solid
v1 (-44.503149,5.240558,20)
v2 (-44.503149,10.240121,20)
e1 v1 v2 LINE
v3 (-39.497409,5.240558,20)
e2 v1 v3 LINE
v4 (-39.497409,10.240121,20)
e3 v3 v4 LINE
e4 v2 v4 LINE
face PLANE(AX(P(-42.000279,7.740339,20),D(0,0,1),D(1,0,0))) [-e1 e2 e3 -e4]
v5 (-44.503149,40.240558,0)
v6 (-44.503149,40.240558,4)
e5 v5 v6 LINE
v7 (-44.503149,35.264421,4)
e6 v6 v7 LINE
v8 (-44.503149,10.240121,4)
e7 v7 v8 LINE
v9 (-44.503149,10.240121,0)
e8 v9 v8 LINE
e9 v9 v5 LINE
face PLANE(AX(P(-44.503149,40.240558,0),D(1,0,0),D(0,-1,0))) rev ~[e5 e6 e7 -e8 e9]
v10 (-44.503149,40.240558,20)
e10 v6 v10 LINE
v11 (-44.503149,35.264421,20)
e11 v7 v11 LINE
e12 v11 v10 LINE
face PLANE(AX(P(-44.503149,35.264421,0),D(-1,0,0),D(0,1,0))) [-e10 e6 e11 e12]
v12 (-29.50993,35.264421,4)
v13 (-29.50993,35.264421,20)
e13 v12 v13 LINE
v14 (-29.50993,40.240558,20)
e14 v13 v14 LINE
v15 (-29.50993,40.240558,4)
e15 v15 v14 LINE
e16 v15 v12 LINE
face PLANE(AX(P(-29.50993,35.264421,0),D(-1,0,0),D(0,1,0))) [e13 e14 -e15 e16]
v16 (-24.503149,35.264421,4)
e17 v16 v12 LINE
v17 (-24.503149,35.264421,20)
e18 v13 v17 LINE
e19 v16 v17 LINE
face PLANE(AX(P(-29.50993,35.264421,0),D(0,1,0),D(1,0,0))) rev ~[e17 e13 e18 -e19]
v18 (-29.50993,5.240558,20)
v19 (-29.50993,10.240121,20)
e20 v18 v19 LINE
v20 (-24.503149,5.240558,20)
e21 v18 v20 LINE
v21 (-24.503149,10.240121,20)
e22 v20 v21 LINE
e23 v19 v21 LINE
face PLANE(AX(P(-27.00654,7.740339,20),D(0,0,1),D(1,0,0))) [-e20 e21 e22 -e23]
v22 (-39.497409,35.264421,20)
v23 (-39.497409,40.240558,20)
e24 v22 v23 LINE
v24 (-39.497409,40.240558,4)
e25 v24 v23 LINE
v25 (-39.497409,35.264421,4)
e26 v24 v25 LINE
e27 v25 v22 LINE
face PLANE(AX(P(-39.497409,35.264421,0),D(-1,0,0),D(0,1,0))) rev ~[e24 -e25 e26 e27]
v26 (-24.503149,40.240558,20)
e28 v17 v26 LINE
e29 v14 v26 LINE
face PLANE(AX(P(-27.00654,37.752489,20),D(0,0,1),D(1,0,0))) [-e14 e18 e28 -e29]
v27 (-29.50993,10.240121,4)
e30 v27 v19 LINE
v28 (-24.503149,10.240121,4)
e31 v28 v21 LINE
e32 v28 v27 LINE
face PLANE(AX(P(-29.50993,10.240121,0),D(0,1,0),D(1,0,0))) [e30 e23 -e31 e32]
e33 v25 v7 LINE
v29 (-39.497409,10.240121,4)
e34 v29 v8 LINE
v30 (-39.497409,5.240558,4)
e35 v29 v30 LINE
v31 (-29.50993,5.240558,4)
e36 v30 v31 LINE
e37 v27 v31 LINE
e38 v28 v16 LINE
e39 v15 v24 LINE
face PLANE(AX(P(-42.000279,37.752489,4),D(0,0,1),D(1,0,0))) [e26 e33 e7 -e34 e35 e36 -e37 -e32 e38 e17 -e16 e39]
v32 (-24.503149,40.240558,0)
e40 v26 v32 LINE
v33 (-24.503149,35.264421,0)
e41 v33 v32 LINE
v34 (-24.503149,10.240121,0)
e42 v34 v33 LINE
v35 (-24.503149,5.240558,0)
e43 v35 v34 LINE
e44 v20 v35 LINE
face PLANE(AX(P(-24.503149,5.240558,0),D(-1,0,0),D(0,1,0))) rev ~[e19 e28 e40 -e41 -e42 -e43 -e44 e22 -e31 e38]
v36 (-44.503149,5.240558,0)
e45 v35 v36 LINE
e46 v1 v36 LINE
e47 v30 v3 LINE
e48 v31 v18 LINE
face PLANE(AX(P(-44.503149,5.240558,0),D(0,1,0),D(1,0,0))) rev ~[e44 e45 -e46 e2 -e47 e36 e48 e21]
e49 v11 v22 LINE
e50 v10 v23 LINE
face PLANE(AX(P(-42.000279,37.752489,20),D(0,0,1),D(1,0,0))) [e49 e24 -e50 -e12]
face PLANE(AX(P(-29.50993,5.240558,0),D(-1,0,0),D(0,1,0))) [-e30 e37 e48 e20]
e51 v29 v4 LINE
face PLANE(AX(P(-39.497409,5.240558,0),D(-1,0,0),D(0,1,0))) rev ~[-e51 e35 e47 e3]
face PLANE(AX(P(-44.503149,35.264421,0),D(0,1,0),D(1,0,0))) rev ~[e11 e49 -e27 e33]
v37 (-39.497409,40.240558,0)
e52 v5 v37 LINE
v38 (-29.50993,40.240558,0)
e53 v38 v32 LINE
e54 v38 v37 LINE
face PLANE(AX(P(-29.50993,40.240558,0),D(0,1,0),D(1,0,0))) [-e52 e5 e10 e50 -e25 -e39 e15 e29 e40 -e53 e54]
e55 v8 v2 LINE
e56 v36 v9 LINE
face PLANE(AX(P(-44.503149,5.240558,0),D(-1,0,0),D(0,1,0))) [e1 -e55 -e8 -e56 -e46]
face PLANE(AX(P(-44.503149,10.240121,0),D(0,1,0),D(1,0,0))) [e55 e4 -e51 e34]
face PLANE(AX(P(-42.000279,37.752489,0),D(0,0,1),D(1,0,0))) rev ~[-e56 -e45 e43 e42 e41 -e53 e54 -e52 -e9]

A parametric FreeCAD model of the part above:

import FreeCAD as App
import Part
import Sketcher
from FreeCAD import Vector

doc = App.newDocument("Part")
params = doc.addObject("Spreadsheet::Sheet", "Params")
for row, (alias, value) in enumerate([
    ("sketch1_width", "20 mm"),
    ("pad1_length", "4 mm"),
    ("pad2_length", "20 mm"),
], start=1):
    params.set(f"A{row}", alias)
    params.set(f"B{row}", "=" + value)
    params.setAlias(f"B{row}", alias)

body = doc.addObject("PartDesign::Body", "Body")

# Sketch on XY plane
sketch1 = body.newObject("Sketcher::SketchObject", "Sketch")
sketch1.AttachmentSupport = (doc.getObject("XY_Plane"), [""])
sketch1.MapMode = "FlatFace"
sketch1.addGeometry([
    Part.LineSegment(Vector(-44.5, 40.2, 0), Vector(-44.5, 10.2, 0)),  # 0
    Part.LineSegment(Vector(-44.5, 10.2, 0), Vector(-44.5, 5.2, 0)),  # 1
    Part.LineSegment(Vector(-44.5, 5.2, 0), Vector(-24.5, 5.2, 0)),  # 2
    Part.LineSegment(Vector(-24.5, 5.2, 0), Vector(-24.5, 10.2, 0)),  # 3
    Part.LineSegment(Vector(-24.5, 10.2, 0), Vector(-24.5, 35.3, 0)),  # 4
    Part.LineSegment(Vector(-24.5, 35.3, 0), Vector(-24.5, 40.2, 0)),  # 5
    Part.LineSegment(Vector(-24.5, 40.2, 0), Vector(-29.5, 40.2, 0)),  # 6
    Part.LineSegment(Vector(-29.5, 40.2, 0), Vector(-39.5, 40.2, 0)),  # 7
    Part.LineSegment(Vector(-39.5, 40.2, 0), Vector(-44.5, 40.2, 0)),  # 8
], False)
sketch1.addConstraint([
    Sketcher.Constraint("Coincident", 0, 2, 1, 1),
    Sketcher.Constraint("Coincident", 1, 2, 2, 1),
    Sketcher.Constraint("Coincident", 2, 2, 3, 1),
    Sketcher.Constraint("Coincident", 3, 2, 4, 1),
    Sketcher.Constraint("Coincident", 4, 2, 5, 1),
    Sketcher.Constraint("Coincident", 5, 2, 6, 1),
    Sketcher.Constraint("Coincident", 6, 2, 7, 1),
    Sketcher.Constraint("Coincident", 7, 2, 8, 1),
    Sketcher.Constraint("Coincident", 8, 2, 0, 1),
    Sketcher.Constraint("Vertical", 0),
    Sketcher.Constraint("Vertical", 1),
    Sketcher.Constraint("Horizontal", 2),
    Sketcher.Constraint("Vertical", 3),
    Sketcher.Constraint("Vertical", 4),
    Sketcher.Constraint("Vertical", 5),
    Sketcher.Constraint("Horizontal", 6),
    Sketcher.Constraint("Horizontal", 7),
    Sketcher.Constraint("Horizontal", 8),
    Sketcher.Constraint("Horizontal", 0, 2, 3, 2),
    Sketcher.Constraint("DistanceX", 2, 1, 2, 2, 20.0),
    Sketcher.Constraint("DistanceY", 2, 2, 5, 2, 35.0),
    Sketcher.Constraint("DistanceY", 4, 1, 4, 2, 25.0243),
    Sketcher.Constraint("DistanceX", 6, 2, 6, 1, 5.006781),
    Sketcher.Constraint("DistanceX", 7, 2, 7, 1, 9.987479),
    Sketcher.Constraint("DistanceY", 0, 2, 0, 1, 30.000437),
    Sketcher.Constraint("DistanceX", 0, 2, -1, 1, 44.503149),
    Sketcher.Constraint("DistanceY", -1, 1, 0, 2, 10.240121),
])
sketch1.setExpression("Constraints[19]", "Params.sketch1_width")
pad1 = body.newObject("PartDesign::Pad", "Pad")
pad1.Profile = sketch1
pad1.setExpression("Length", "Params.pad1_length")

# Sketch on XY plane
sketch2 = body.newObject("Sketcher::SketchObject", "Sketch001")
sketch2.AttachmentSupport = (doc.getObject("XY_Plane"), [""])
sketch2.MapMode = "FlatFace"
sketch2.addGeometry([
    Part.LineSegment(Vector(-29.5, 40.2, 0), Vector(-29.5, 35.3, 0)),  # 0
    Part.LineSegment(Vector(-29.5, 35.3, 0), Vector(-24.5, 35.3, 0)),  # 1
    Part.LineSegment(Vector(-24.5, 35.3, 0), Vector(-24.5, 40.2, 0)),  # 2
    Part.LineSegment(Vector(-24.5, 40.2, 0), Vector(-29.5, 40.2, 0)),  # 3
    Part.LineSegment(Vector(-44.5, 40.2, 0), Vector(-44.5, 35.3, 0)),  # 4
    Part.LineSegment(Vector(-44.5, 35.3, 0), Vector(-39.5, 35.3, 0)),  # 5
    Part.LineSegment(Vector(-39.5, 35.3, 0), Vector(-39.5, 40.2, 0)),  # 6
    Part.LineSegment(Vector(-39.5, 40.2, 0), Vector(-44.5, 40.2, 0)),  # 7
    Part.LineSegment(Vector(-44.5, 10.2, 0), Vector(-44.5, 5.2, 0)),  # 8
    Part.LineSegment(Vector(-44.5, 5.2, 0), Vector(-39.5, 5.2, 0)),  # 9
    Part.LineSegment(Vector(-39.5, 5.2, 0), Vector(-39.5, 10.2, 0)),  # 10
    Part.LineSegment(Vector(-39.5, 10.2, 0), Vector(-44.5, 10.2, 0)),  # 11
    Part.LineSegment(Vector(-29.5, 10.2, 0), Vector(-29.5, 5.2, 0)),  # 12
    Part.LineSegment(Vector(-29.5, 5.2, 0), Vector(-24.5, 5.2, 0)),  # 13
    Part.LineSegment(Vector(-24.5, 5.2, 0), Vector(-24.5, 10.2, 0)),  # 14
    Part.LineSegment(Vector(-24.5, 10.2, 0), Vector(-29.5, 10.2, 0)),  # 15
], False)
sketch2.addConstraint([
    Sketcher.Constraint("Coincident", 0, 2, 1, 1),
    Sketcher.Constraint("Coincident", 1, 2, 2, 1),
    Sketcher.Constraint("Coincident", 2, 2, 3, 1),
    Sketcher.Constraint("Coincident", 3, 2, 0, 1),
    Sketcher.Constraint("Coincident", 4, 2, 5, 1),
    Sketcher.Constraint("Coincident", 5, 2, 6, 1),
    Sketcher.Constraint("Coincident", 6, 2, 7, 1),
    Sketcher.Constraint("Coincident", 7, 2, 4, 1),
    Sketcher.Constraint("Coincident", 8, 2, 9, 1),
    Sketcher.Constraint("Coincident", 9, 2, 10, 1),
    Sketcher.Constraint("Coincident", 10, 2, 11, 1),
    Sketcher.Constraint("Coincident", 11, 2, 8, 1),
    Sketcher.Constraint("Coincident", 12, 2, 13, 1),
    Sketcher.Constraint("Coincident", 13, 2, 14, 1),
    Sketcher.Constraint("Coincident", 14, 2, 15, 1),
    Sketcher.Constraint("Coincident", 15, 2, 12, 1),
    Sketcher.Constraint("Vertical", 0),
    Sketcher.Constraint("Horizontal", 1),
    Sketcher.Constraint("Vertical", 2),
    Sketcher.Constraint("Horizontal", 3),
    Sketcher.Constraint("Vertical", 4),
    Sketcher.Constraint("Horizontal", 5),
    Sketcher.Constraint("Vertical", 6),
    Sketcher.Constraint("Horizontal", 7),
    Sketcher.Constraint("Vertical", 8),
    Sketcher.Constraint("Horizontal", 9),
    Sketcher.Constraint("Vertical", 10),
    Sketcher.Constraint("Horizontal", 11),
    Sketcher.Constraint("Vertical", 12),
    Sketcher.Constraint("Horizontal", 13),
    Sketcher.Constraint("Vertical", 14),
    Sketcher.Constraint("Horizontal", 15),
    Sketcher.Constraint("Horizontal", 1, 2, 4, 2),
    Sketcher.Constraint("Horizontal", 3, 2, 6, 2),
    Sketcher.Constraint("Horizontal", 9, 2, 12, 2),
    Sketcher.Constraint("Horizontal", 11, 2, 14, 2),
    Sketcher.Constraint("Vertical", 7, 2, 8, 2),
    Sketcher.Constraint("Vertical", 6, 2, 9, 2),
    Sketcher.Constraint("Vertical", 3, 2, 12, 2),
    Sketcher.Constraint("Vertical", 2, 2, 13, 2),
    Sketcher.Constraint("DistanceX", 4, 2, 1, 2, 20.0),
    Sketcher.Constraint("DistanceY", 8, 2, 7, 2, 35.0),
    Sketcher.Constraint("DistanceX", 1, 1, 1, 2, 5.006781),
    Sketcher.Constraint("DistanceX", 5, 1, 5, 2, 5.00574),
    Sketcher.Constraint("DistanceY", 10, 2, 5, 2, 25.0243),
    Sketcher.Constraint("DistanceY", 0, 2, 0, 1, 4.976136),
    Sketcher.Constraint("DistanceX", 0, 2, -1, 1, 29.50993),
    Sketcher.Constraint("DistanceY", -1, 1, 0, 2, 35.264421),
])
pad2 = body.newObject("PartDesign::Pad", "Pad001")
pad2.Profile = sketch2
pad2.setExpression("Length", "Params.pad2_length")

doc.recompute()
